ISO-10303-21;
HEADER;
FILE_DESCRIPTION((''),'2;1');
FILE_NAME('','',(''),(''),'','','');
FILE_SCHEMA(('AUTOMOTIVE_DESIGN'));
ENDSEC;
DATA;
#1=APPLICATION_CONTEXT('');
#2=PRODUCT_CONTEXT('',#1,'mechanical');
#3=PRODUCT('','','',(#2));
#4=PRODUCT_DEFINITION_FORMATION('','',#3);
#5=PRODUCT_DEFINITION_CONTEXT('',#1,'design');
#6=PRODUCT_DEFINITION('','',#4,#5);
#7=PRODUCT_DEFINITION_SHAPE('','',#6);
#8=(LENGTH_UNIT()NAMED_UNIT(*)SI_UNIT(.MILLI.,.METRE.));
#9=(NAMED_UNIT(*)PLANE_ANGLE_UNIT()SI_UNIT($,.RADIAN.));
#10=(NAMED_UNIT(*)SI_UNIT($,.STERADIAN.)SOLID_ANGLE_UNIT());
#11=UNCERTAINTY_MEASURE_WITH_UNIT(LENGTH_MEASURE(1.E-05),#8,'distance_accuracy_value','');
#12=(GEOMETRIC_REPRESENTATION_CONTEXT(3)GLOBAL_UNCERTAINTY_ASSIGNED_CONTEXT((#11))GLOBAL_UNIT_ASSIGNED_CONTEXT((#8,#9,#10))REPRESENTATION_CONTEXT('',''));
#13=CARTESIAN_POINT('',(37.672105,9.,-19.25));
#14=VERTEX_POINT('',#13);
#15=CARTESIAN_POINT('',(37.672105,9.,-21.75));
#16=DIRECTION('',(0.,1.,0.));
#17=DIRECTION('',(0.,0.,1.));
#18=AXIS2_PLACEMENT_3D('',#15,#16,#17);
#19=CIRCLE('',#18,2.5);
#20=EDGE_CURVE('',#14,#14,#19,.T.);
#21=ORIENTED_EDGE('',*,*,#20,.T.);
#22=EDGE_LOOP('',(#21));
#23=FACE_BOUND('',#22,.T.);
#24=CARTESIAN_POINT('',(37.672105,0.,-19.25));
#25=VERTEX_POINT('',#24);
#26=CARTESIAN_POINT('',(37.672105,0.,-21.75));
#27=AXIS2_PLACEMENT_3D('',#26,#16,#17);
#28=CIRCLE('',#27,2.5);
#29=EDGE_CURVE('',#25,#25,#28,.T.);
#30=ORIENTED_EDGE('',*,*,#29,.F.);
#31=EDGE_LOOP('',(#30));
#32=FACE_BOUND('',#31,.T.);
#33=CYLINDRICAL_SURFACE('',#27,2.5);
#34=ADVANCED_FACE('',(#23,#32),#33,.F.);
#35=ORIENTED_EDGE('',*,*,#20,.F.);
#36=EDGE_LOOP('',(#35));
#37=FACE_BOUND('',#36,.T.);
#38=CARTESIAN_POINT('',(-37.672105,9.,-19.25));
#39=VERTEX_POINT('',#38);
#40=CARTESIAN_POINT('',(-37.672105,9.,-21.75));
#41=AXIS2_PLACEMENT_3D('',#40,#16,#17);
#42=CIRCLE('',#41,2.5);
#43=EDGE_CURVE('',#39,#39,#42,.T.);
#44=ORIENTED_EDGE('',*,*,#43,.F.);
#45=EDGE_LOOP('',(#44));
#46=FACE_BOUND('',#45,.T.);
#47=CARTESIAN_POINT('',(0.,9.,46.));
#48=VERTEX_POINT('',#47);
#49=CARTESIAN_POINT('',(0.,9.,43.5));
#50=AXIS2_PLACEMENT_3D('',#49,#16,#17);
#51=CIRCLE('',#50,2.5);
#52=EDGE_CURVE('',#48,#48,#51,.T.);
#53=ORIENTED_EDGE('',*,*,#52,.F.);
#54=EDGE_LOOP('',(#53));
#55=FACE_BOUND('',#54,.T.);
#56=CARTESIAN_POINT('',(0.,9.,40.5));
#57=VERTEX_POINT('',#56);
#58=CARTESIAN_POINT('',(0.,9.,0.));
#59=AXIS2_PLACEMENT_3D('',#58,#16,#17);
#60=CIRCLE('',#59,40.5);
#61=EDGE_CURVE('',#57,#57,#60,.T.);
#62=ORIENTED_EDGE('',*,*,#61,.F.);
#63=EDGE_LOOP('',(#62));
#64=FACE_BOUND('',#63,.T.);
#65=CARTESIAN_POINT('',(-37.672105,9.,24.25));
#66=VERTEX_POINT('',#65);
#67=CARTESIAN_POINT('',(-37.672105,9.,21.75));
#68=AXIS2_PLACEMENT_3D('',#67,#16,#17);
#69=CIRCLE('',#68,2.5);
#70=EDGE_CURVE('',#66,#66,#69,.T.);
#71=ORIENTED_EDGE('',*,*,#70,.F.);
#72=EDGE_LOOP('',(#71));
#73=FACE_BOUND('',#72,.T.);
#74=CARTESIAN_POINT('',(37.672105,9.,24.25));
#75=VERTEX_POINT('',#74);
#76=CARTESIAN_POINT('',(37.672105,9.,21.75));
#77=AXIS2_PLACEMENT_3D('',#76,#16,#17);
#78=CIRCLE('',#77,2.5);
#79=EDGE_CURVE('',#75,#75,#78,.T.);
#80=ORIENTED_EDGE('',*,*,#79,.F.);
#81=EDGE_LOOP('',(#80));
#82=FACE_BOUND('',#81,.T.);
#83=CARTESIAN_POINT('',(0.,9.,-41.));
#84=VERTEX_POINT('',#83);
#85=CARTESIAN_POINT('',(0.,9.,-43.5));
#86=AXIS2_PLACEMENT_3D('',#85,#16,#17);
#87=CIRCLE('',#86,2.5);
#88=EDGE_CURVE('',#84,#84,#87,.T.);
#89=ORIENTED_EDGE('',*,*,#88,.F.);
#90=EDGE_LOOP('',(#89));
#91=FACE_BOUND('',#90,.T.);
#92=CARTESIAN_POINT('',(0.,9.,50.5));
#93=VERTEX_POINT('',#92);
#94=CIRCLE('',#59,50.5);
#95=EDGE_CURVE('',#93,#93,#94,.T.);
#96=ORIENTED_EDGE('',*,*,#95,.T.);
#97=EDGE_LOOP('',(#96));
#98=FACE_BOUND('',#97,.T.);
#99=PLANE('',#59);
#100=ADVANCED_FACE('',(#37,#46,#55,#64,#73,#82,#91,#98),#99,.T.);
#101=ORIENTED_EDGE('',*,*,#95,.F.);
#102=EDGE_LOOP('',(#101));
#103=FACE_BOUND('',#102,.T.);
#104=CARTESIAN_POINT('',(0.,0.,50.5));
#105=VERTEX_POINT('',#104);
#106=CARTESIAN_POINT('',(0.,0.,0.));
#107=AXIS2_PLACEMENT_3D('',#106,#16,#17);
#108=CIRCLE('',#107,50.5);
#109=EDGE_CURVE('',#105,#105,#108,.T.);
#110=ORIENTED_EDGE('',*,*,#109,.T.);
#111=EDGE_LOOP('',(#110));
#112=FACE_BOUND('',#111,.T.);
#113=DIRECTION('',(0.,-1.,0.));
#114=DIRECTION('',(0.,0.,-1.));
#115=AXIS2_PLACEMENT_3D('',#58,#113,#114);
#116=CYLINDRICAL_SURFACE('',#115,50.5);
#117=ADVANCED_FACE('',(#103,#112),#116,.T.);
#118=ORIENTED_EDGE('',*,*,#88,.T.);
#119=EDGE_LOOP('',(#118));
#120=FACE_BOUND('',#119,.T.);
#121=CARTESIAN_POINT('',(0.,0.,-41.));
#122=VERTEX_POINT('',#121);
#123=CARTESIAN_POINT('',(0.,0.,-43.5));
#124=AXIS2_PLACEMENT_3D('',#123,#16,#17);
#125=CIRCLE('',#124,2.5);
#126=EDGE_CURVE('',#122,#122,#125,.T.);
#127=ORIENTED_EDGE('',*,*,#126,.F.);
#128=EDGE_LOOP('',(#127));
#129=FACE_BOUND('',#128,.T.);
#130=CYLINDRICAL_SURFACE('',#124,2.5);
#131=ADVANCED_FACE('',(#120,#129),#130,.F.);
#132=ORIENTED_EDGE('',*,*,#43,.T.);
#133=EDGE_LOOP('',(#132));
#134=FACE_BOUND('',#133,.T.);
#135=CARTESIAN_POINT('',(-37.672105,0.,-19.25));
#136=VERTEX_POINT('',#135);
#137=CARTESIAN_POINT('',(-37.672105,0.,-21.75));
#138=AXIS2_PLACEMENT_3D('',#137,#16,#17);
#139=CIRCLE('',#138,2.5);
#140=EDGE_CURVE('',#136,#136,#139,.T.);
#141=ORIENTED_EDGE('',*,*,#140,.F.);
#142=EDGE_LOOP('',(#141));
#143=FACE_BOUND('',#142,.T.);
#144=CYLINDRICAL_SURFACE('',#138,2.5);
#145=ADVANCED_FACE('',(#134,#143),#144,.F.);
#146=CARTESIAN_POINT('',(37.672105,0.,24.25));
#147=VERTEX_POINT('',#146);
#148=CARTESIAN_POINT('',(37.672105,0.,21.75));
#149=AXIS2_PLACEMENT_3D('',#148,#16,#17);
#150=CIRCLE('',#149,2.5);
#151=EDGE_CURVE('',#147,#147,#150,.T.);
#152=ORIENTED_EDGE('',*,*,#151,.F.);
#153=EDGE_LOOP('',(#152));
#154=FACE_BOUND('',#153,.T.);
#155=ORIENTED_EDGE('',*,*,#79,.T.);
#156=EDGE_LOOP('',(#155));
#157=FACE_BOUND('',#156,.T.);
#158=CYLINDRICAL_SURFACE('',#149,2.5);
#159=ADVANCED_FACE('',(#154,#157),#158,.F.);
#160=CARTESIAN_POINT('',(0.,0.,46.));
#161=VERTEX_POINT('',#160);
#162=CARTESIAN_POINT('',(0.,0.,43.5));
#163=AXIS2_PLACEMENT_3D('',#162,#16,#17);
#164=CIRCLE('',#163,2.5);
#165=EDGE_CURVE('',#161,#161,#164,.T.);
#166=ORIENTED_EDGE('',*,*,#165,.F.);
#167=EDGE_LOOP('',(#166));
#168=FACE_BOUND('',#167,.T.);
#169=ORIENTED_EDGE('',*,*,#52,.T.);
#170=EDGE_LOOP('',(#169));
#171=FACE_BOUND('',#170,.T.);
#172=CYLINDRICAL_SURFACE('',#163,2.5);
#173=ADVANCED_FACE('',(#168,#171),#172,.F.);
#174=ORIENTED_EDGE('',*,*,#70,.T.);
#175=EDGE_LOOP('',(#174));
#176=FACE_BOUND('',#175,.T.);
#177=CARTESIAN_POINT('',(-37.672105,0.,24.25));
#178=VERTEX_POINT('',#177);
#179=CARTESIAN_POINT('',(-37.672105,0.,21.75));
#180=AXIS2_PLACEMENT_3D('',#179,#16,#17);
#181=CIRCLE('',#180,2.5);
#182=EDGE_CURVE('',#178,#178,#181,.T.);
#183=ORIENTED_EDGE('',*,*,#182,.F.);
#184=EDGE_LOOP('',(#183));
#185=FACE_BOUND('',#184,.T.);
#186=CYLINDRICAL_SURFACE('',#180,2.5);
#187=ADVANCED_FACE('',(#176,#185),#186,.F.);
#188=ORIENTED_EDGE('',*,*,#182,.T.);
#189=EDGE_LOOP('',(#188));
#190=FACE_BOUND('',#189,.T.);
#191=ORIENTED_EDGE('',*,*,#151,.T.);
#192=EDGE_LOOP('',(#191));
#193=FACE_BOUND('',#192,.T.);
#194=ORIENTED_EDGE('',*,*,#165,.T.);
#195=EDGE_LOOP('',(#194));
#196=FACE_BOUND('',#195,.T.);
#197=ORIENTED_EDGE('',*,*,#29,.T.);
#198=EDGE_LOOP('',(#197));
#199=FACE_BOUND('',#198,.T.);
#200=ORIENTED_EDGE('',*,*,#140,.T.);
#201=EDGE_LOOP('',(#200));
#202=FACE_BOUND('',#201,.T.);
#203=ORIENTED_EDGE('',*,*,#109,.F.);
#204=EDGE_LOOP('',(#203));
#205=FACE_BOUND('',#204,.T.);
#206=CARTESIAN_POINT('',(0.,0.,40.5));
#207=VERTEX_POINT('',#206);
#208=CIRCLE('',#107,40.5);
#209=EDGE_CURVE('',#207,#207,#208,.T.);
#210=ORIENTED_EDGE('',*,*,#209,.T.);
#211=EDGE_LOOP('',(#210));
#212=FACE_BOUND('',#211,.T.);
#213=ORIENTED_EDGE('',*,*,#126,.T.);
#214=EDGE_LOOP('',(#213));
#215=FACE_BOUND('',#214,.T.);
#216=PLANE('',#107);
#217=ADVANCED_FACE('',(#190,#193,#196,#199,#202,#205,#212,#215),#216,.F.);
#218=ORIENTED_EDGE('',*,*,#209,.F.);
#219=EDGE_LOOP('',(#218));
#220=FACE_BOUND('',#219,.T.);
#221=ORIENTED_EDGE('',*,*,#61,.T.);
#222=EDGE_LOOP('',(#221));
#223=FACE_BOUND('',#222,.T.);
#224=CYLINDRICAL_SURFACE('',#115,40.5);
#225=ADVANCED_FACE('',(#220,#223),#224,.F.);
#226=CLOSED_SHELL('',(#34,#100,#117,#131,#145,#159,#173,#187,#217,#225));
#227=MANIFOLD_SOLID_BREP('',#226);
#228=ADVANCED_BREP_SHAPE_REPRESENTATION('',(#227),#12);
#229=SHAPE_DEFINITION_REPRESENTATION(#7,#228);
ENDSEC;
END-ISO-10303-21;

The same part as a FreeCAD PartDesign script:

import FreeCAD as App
import Part
import Sketcher

V = App.Vector
Q = App.Units.Quantity

doc = App.newDocument("Part")
body = doc.addObject("PartDesign::Body", "Body")

# Sketch on XZ plane
sketch1 = body.newObject("Sketcher::SketchObject", "Sketch")
sketch1.AttachmentSupport = (doc.getObject("XZ_Plane"), [""])
sketch1.MapMode = "FlatFace"
sketch1.addGeometry([
    Part.Circle(V(0, 0, 0), V(0, 0, 1), 50),
    Part.Circle(V(0, 0, 0), V(0, 0, 1), 40),
], False)
sketch1.addConstraint([
    Sketcher.Constraint("Coincident", 0, 3, -1, 1),
    Sketcher.Constraint("Coincident", 1, 3, -1, 1),
    Sketcher.Constraint("Diameter", 0, Q("101 mm")),
    Sketcher.Constraint("Diameter", 1, Q("81 mm")),
])
pad1 = body.newObject("PartDesign::Pad", "Pad")
pad1.Profile = sketch1
pad1.Length = 9
pad1.Reversed = True

# Sketch on XZ plane
sketch2 = body.newObject("Sketcher::SketchObject", "Sketch001")
sketch2.AttachmentSupport = (doc.getObject("XZ_Plane"), [""])
sketch2.MapMode = "FlatFace"
sketch2.AttachmentOffset = App.Placement(V(0, 0, -9), App.Rotation())
sketch2.addGeometry([
    Part.Circle(V(0, -43.5, 0), V(0, 0, 1), 2.5),  # 0
    Part.Circle(V(37.7, -21.8, 0), V(0, 0, 1), 2.5),  # 1
    Part.Circle(V(37.7, 21.8, 0), V(0, 0, 1), 2.5),  # 2
    Part.Circle(V(0, 43.5, 0), V(0, 0, 1), 2.5),  # 3
    Part.Circle(V(-37.7, 21.8, 0), V(0, 0, 1), 2.5),  # 4
    Part.Circle(V(-37.7, -21.8, 0), V(0, 0, 1), 2.5),  # 5
], False)
sketch2.addConstraint([
    Sketcher.Constraint("Equal", 0, 1),
    Sketcher.Constraint("Equal", 1, 2),
    Sketcher.Constraint("Equal", 2, 3),
    Sketcher.Constraint("Equal", 3, 4),
    Sketcher.Constraint("Equal", 4, 5),
    Sketcher.Constraint("Symmetric", 0, 3, 3, 3, -1, 1),
    Sketcher.Constraint("Symmetric", 1, 3, 4, 3, -1, 1),
    Sketcher.Constraint("Symmetric", 2, 3, 5, 3, -1, 1),
    Sketcher.Constraint("Symmetric", 2, 3, 4, 3, -2),
    Sketcher.Constraint("PointOnObject", 0, 3, -2),
    Sketcher.Constraint("Diameter", 0, Q("5 mm")),
    Sketcher.Constraint("DistanceY", 0, 3, 3, 3, Q("87 mm")),
    Sketcher.Constraint("DistanceY", 1, 3, 2, 3, Q("43.5 mm")),
    Sketcher.Constraint("DistanceX", 4, 3, 2, 3, Q("75.34421 mm")),
])
pocket1 = body.newObject("PartDesign::Pocket", "Pocket")
pocket1.Profile = sketch2
pocket1.Length = 9
pocket1.Reversed = True

doc.recompute()
